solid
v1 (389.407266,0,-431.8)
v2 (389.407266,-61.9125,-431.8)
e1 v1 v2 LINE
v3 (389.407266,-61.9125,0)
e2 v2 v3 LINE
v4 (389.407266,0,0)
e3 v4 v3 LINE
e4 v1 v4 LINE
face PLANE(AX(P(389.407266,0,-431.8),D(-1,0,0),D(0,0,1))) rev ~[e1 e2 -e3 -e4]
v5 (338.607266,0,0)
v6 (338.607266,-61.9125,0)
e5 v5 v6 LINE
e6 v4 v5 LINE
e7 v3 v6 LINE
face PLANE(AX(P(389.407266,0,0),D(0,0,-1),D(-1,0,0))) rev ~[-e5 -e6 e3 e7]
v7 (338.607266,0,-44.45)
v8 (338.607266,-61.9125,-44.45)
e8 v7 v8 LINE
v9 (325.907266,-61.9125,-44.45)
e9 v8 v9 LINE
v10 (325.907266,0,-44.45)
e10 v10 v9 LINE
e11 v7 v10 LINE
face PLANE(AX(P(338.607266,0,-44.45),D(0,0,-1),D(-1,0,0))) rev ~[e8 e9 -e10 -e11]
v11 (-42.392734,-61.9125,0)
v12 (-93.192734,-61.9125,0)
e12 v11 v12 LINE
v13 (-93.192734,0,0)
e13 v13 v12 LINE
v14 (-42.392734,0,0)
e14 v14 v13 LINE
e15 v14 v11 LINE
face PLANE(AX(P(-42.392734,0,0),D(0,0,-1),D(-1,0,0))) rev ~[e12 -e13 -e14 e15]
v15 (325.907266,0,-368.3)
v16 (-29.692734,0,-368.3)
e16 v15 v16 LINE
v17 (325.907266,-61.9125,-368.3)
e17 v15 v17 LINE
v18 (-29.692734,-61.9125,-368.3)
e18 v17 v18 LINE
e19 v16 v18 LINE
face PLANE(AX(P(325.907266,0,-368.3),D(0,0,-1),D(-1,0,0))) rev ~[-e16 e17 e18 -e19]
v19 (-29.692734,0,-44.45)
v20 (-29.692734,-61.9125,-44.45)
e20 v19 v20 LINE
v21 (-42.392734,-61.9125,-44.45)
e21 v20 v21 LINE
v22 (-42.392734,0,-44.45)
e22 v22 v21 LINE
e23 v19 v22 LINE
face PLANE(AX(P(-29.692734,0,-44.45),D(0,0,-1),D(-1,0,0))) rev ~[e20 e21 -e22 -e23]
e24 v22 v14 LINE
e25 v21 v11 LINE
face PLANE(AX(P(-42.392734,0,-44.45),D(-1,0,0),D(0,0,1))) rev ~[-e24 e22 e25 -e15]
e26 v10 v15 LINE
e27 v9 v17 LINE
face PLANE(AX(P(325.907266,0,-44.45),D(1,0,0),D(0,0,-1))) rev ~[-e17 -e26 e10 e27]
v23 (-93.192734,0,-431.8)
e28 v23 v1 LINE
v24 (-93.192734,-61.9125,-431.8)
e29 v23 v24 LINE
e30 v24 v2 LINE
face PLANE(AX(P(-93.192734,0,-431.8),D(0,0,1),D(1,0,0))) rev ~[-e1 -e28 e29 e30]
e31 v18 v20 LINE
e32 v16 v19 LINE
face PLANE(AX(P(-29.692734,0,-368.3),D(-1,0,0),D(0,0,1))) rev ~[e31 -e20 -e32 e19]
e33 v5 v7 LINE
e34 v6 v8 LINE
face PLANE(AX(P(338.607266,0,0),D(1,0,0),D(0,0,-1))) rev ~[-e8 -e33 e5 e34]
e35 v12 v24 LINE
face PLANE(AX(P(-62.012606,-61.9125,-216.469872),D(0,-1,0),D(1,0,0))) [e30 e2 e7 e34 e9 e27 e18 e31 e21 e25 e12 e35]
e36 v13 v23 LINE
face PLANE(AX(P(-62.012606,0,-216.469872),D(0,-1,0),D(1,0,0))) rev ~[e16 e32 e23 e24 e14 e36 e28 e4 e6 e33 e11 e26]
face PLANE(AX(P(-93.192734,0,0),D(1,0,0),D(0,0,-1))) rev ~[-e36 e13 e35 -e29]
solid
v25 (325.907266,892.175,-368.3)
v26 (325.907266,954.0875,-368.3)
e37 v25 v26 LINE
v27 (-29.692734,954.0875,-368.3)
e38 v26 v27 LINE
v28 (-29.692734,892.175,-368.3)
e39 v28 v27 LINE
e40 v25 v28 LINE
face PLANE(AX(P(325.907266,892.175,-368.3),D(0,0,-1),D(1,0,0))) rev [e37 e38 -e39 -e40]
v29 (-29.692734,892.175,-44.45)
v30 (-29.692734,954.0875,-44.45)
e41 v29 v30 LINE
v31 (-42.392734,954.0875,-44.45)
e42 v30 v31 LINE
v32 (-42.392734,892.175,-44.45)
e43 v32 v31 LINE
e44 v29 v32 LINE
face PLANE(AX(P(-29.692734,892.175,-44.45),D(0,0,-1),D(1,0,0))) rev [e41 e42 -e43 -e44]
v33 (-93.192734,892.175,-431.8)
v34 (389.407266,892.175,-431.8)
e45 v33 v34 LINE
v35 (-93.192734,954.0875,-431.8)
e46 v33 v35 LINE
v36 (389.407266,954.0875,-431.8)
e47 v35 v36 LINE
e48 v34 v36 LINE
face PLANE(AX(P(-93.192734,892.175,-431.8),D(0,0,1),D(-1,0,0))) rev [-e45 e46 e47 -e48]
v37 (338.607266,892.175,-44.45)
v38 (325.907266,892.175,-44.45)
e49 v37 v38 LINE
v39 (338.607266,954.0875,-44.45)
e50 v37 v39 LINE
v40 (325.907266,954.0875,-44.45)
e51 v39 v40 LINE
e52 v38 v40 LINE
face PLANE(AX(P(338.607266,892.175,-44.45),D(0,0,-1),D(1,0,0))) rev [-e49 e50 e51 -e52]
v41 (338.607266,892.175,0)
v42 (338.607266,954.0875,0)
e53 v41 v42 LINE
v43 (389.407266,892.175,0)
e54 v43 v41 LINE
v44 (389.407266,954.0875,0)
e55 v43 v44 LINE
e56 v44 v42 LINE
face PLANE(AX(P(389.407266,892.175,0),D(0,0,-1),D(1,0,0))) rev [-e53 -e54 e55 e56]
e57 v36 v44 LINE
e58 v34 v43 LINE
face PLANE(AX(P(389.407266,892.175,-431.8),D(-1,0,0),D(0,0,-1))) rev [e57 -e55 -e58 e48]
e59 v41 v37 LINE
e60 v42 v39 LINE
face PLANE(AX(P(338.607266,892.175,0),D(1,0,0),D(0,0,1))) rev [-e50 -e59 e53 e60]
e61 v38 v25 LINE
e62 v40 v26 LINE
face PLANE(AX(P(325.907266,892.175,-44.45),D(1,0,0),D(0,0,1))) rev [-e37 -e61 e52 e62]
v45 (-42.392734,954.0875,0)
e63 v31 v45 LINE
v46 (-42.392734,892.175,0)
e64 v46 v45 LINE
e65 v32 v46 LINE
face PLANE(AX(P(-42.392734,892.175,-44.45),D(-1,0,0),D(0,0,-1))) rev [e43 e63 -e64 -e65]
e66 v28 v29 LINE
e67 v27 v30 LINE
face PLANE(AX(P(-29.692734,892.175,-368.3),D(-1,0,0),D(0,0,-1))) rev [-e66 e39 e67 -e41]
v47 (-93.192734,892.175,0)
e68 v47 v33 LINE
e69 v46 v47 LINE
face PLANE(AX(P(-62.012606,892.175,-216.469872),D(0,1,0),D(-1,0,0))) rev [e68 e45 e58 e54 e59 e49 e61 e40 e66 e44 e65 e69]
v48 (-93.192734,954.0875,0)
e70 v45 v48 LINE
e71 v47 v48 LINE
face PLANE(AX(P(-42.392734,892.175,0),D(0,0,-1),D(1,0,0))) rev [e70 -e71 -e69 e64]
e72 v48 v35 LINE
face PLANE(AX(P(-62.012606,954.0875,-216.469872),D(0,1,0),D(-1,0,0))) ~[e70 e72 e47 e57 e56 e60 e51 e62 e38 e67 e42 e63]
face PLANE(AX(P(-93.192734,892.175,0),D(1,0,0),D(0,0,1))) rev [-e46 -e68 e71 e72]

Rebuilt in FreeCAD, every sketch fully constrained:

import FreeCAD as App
import Part
import Sketcher

V = App.Vector
Q = App.Units.Quantity

doc = App.newDocument("Part")
body = doc.addObject("PartDesign::Body", "Body")

sketch1 = body.newObject("Sketcher::SketchObject", "Sketch")
sketch1.AttachmentSupport = (doc.getObject("XZ_Plane"), [""])
sketch1.MapMode = "FlatFace"
sketch1.addGeometry([
    Part.LineSegment(V(-42.392734, 0, 0), V(-93.192734, 0, 0)),
    Part.LineSegment(V(-93.192734, 0, 0), V(-93.192734, -431.8, 0)),
    Part.LineSegment(V(-93.192734, -431.8, 0), V(389.407266, -431.8, 0)),
    Part.LineSegment(V(389.407266, -431.8, 0), V(389.407266, 0, 0)),
    Part.LineSegment(V(389.407266, 0, 0), V(338.607266, 0, 0)),
    Part.LineSegment(V(338.607266, 0, 0), V(338.607266, -44.45, 0)),
    Part.LineSegment(V(338.607266, -44.45, 0), V(325.907266, -44.45, 0)),
    Part.LineSegment(V(325.907266, -44.45, 0), V(325.907266, -368.3, 0)),
    Part.LineSegment(V(325.907266, -368.3, 0), V(-29.692734, -368.3, 0)),
    Part.LineSegment(V(-29.692734, -368.3, 0), V(-29.692734, -44.45, 0)),
    Part.LineSegment(V(-29.692734, -44.45, 0), V(-42.392734, -44.45, 0)),
    Part.LineSegment(V(-42.392734, -44.45, 0), V(-42.392734, 0, 0)),
], False)
sketch1.addConstraint([
    Sketcher.Constraint("Coincident", 0, 2, 1, 1),
    Sketcher.Constraint("Coincident", 1, 2, 2, 1),
    Sketcher.Constraint("Coincident", 2, 2, 3, 1),
    Sketcher.Constraint("Coincident", 3, 2, 4, 1),
    Sketcher.Constraint("Coincident", 4, 2, 5, 1),
    Sketcher.Constraint("Coincident", 5, 2, 6, 1),
    Sketcher.Constraint("Coincident", 6, 2, 7, 1),
    Sketcher.Constraint("Coincident", 7, 2, 8, 1),
    Sketcher.Constraint("Coincident", 8, 2, 9, 1),
    Sketcher.Constraint("Coincident", 9, 2, 10, 1),
    Sketcher.Constraint("Coincident", 10, 2, 11, 1),
    Sketcher.Constraint("Coincident", 11, 2, 0, 1),
    Sketcher.Constraint("Horizontal", 0),
    Sketcher.Constraint("Vertical", 1),
    Sketcher.Constraint("Horizontal", 2),
    Sketcher.Constraint("Vertical", 3),
    Sketcher.Constraint("Horizontal", 4),
    Sketcher.Constraint("Vertical", 5),
    Sketcher.Constraint("Horizontal", 6),
    Sketcher.Constraint("Vertical", 7),
    Sketcher.Constraint("Horizontal", 8),
    Sketcher.Constraint("Vertical", 9),
    Sketcher.Constraint("Horizontal", 10),
    Sketcher.Constraint("Vertical", 11),
    Sketcher.Constraint("PointOnObject", 0, 2, -1),
    Sketcher.Constraint("PointOnObject", 3, 2, -1),
    Sketcher.Constraint("Horizontal", 6, 2, 9, 2),
    Sketcher.Constraint("Equal", 0, 4),
    Sketcher.Constraint("Equal", 6, 10),
    Sketcher.Constraint("DistanceX", 0, 2, 0, 1, Q("2 in")),
    Sketcher.Constraint("DistanceX", 2, 1, 2, 2, Q("19 in")),
    Sketcher.Constraint("DistanceX", 8, 2, 8, 1, Q("14 in")),
    Sketcher.Constraint("DistanceY", 1, 2, 1, 1, Q("17 in")),
    Sketcher.Constraint("DistanceY", 5, 2, 5, 1, Q("1.75 in")),
    Sketcher.Constraint("DistanceY", 7, 2, 7, 1, Q("12.75 in")),
    Sketcher.Constraint("DistanceX", 0, 2, -1, 1, Q("93.192734 mm")),
])
pad1 = body.newObject("PartDesign::Pad", "Pad")
pad1.Profile = sketch1
pad1.Length = Q("2.4375 in")
body2 = doc.addObject("PartDesign::Body", "Body001")
doc.recompute()

mirroring = doc.addObject("Part::Mirroring", "Mirroring")
mirroring.Source = body
mirroring.Base = V(0, 446.0875, 0)
mirroring.Normal = V(0, 1, 0)
body2.BaseFeature = mirroring
doc.recompute()
mirroring.Visibility = False

doc.recompute()
